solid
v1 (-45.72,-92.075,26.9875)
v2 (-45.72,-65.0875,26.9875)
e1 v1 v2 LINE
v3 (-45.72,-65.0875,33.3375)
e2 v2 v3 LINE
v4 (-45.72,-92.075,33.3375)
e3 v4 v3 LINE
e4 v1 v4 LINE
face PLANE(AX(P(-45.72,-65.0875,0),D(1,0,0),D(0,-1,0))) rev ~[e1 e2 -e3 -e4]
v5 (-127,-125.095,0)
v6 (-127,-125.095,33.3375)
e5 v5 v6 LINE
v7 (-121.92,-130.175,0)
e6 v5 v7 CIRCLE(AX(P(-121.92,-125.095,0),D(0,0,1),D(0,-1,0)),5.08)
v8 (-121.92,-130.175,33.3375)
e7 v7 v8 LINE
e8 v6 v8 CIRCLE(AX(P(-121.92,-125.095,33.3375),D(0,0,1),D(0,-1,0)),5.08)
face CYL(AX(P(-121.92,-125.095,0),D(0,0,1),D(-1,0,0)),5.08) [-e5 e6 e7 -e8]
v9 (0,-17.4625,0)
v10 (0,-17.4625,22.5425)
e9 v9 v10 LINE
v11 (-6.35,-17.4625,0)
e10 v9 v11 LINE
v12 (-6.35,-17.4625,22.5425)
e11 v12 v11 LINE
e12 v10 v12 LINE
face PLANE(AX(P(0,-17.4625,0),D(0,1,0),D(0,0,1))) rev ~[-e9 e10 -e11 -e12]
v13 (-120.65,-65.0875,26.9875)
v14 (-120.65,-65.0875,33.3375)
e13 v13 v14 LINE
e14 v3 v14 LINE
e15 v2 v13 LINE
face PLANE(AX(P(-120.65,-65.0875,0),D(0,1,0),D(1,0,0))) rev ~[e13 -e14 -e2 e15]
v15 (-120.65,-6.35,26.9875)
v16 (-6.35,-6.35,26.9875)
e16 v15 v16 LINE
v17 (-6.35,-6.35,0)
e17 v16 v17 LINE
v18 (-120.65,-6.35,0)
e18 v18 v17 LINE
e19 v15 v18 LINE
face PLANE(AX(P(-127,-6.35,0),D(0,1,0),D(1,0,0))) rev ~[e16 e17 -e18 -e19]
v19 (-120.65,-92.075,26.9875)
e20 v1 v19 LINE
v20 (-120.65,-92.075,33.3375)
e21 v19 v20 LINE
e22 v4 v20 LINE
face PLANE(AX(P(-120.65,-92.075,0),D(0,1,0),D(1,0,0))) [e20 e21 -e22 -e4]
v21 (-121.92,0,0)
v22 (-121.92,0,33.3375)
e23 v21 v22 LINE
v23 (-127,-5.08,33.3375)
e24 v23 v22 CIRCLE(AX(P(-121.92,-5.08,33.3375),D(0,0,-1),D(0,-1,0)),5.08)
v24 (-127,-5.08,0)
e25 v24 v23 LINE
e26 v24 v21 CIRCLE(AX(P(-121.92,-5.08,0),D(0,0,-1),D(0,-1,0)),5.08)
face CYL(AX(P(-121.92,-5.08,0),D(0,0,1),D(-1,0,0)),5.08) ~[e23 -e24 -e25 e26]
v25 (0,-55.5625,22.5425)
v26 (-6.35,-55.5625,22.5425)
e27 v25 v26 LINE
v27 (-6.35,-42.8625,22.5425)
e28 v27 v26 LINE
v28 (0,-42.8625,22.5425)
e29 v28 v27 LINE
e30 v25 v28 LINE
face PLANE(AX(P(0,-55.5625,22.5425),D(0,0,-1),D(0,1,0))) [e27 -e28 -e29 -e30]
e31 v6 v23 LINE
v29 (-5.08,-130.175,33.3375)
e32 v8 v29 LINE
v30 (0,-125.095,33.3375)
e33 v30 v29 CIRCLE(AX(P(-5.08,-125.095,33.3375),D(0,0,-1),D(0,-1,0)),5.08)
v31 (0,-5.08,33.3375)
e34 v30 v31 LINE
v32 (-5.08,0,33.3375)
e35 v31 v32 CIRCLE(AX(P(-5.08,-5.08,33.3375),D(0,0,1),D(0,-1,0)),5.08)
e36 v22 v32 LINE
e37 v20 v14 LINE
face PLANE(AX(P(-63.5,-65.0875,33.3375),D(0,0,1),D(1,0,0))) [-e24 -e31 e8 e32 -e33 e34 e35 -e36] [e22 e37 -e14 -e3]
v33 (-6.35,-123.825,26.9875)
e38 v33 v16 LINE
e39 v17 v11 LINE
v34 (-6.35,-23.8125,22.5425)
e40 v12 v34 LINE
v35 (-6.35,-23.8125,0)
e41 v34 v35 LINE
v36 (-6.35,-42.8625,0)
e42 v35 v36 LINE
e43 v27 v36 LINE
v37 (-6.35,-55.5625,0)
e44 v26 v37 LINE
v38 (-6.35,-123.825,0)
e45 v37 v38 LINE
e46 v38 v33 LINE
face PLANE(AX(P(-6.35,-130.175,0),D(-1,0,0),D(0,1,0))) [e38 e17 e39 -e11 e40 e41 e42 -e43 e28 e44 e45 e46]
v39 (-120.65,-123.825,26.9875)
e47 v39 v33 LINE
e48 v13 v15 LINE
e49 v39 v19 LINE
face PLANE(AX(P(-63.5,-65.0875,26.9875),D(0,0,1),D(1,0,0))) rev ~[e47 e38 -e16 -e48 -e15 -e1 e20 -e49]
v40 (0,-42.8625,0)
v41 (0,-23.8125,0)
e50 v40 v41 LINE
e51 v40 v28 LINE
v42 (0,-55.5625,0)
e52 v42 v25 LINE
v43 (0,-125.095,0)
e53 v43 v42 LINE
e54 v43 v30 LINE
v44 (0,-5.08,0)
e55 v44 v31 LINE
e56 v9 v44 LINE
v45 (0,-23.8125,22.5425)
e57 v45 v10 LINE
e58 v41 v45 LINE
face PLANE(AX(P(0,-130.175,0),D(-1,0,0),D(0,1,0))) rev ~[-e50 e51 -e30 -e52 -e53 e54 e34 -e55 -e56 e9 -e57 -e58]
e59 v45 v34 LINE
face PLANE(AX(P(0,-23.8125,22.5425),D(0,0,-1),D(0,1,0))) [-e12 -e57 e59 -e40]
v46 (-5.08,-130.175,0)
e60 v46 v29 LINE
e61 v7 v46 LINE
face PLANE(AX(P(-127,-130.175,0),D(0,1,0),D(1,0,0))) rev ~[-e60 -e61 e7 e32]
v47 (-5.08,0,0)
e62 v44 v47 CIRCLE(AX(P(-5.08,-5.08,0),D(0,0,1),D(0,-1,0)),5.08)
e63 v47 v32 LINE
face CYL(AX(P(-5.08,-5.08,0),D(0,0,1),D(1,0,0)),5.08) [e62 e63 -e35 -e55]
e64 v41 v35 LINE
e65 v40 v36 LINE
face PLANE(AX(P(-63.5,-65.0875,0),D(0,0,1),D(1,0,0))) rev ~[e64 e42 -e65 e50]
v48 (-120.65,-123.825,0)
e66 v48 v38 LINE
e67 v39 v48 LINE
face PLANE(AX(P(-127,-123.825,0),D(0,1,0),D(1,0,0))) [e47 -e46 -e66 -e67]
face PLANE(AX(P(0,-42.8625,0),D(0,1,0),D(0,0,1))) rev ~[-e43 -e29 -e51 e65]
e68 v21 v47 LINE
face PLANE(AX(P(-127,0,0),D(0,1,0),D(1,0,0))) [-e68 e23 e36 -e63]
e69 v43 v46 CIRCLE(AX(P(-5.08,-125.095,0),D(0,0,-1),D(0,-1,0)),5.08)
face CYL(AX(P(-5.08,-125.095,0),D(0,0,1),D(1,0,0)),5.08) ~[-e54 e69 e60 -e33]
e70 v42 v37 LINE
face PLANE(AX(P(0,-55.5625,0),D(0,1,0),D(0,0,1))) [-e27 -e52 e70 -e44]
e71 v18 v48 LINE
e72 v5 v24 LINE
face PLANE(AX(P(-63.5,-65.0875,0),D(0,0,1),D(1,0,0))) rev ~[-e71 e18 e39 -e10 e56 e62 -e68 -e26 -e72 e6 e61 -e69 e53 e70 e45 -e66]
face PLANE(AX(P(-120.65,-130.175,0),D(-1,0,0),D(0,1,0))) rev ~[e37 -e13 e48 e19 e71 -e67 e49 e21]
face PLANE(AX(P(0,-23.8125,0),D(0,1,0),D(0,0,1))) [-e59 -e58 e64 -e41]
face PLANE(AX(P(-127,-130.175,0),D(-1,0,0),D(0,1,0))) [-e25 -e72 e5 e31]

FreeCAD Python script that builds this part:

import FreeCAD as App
import Part
import Sketcher
from FreeCAD import Vector
Q = App.Units.Quantity


def edges_at(feature, points):
    """Names of the edges that pass closest to the given points."""
    edges = feature.Shape.Edges
    near = lambda p: min(range(len(edges)), key=lambda i: edges[i].distToShape(Part.Vertex(*p))[0])
    return sorted({f"Edge{near(p) + 1}" for p in points})


def faces_at(feature, points):
    """Names of the faces that lie closest to the given points."""
    faces = feature.Shape.Faces
    near = lambda p: min(range(len(faces)), key=lambda i: faces[i].distToShape(Part.Vertex(*p))[0])
    return sorted({f"Face{near(p) + 1}" for p in points})

doc = App.newDocument("Part")
body = doc.addObject("PartDesign::Body", "Body")

# Sketch on XY plane
sketch1 = doc.addObject("Sketcher::SketchObject", "Sketch")
body.addObject(sketch1)
sketch1.AttachmentSupport = (doc.XY_Plane, [""])
sketch1.MapMode = "FlatFace"
sketch1.addGeometry(Part.LineSegment(Vector(-127, 0, 0), Vector(-127, -130.175, 0)), False)
sketch1.addGeometry(Part.LineSegment(Vector(-127, -130.175, 0), Vector(0, -130.175, 0)), False)
sketch1.addGeometry(Part.LineSegment(Vector(0, -130.175, 0), Vector(0, 0, 0)), False)
sketch1.addGeometry(Part.LineSegment(Vector(0, 0, 0), Vector(-127, 0, 0)), False)
sketch1.addConstraint(Sketcher.Constraint("Coincident", 0, 2, 1, 1))
sketch1.addConstraint(Sketcher.Constraint("Coincident", 1, 2, 2, 1))
sketch1.addConstraint(Sketcher.Constraint("Coincident", 2, 2, 3, 1))
sketch1.addConstraint(Sketcher.Constraint("Coincident", 3, 2, 0, 1))
sketch1.addConstraint(Sketcher.Constraint("Vertical", 0))
sketch1.addConstraint(Sketcher.Constraint("Horizontal", 1))
sketch1.addConstraint(Sketcher.Constraint("Vertical", 2))
sketch1.addConstraint(Sketcher.Constraint("Horizontal", 3))
sketch1.addConstraint(Sketcher.Constraint("Coincident", 2, 2, -1, 1))
sketch1.addConstraint(Sketcher.Constraint("DistanceX", 1, 1, 1, 2, Q("5 in")))
sketch1.addConstraint(Sketcher.Constraint("DistanceY", 0, 2, 0, 1, Q("5.125 in")))
pad1 = doc.addObject("PartDesign::Pad", "Pad")
body.addObject(pad1)
pad1.Profile = sketch1
pad1.Length = Q("1.3125 in")
doc.recompute()

thickness = doc.addObject("PartDesign::Thickness", "Thickness")
body.addObject(thickness)
thickness.Base = (pad1, faces_at(pad1, [(-63.5, -65.088, 0)]))
thickness.Value = Q("0.25 in")
thickness.Reversed = True
thickness.Join = "Arc"

# Sketch on XY plane
sketch2 = doc.addObject("Sketcher::SketchObject", "Sketch001")
body.addObject(sketch2)
sketch2.AttachmentSupport = (doc.XY_Plane, [""])
sketch2.MapMode = "FlatFace"
sketch2.addGeometry(Part.LineSegment(Vector(-120.65, -92.075, 0), Vector(-120.65, -65.0875, 0)), False)
sketch2.addGeometry(Part.LineSegment(Vector(-120.65, -65.0875, 0), Vector(-45.72, -65.0875, 0)), False)
sketch2.addGeometry(Part.LineSegment(Vector(-45.72, -65.0875, 0), Vector(-45.72, -92.075, 0)), False)
sketch2.addGeometry(Part.LineSegment(Vector(-45.72, -92.075, 0), Vector(-120.65, -92.075, 0)), False)
sketch2.addConstraint(Sketcher.Constraint("Coincident", 0, 2, 1, 1))
sketch2.addConstraint(Sketcher.Constraint("Coincident", 1, 2, 2, 1))
sketch2.addConstraint(Sketcher.Constraint("Coincident", 2, 2, 3, 1))
sketch2.addConstraint(Sketcher.Constraint("Coincident", 3, 2, 0, 1))
sketch2.addConstraint(Sketcher.Constraint("Vertical", 0))
sketch2.addConstraint(Sketcher.Constraint("Horizontal", 1))
sketch2.addConstraint(Sketcher.Constraint("Vertical", 2))
sketch2.addConstraint(Sketcher.Constraint("Horizontal", 3))
sketch2.addConstraint(Sketcher.Constraint("DistanceX", 1, 1, 1, 2, Q("2.95 in")))
sketch2.addConstraint(Sketcher.Constraint("DistanceX", 1, 2, -1, 1, Q("1.8 in")))
sketch2.addConstraint(Sketcher.Constraint("DistanceY", 0, 1, 0, 2, Q("1.0625 in")))
sketch2.addConstraint(Sketcher.Constraint("DistanceY", 0, 2, -1, 1, Q("2.5625 in")))
pocket1 = doc.addObject("PartDesign::Pocket", "Pocket")
body.addObject(pocket1)
pocket1.Profile = sketch2
pocket1.Length = Q("1.38 in")
pocket1.Reversed = True

# Sketch on YZ plane
sketch3 = doc.addObject("Sketcher::SketchObject", "Sketch002")
body.addObject(sketch3)
sketch3.AttachmentSupport = (doc.YZ_Plane, [""])
sketch3.MapMode = "FlatFace"
sketch3.addGeometry(Part.LineSegment(Vector(-55.5625, 0, 0), Vector(-55.5625, -8.65013, 0)), False)
sketch3.addGeometry(Part.LineSegment(Vector(-55.5625, -8.65013, 0), Vector(-42.8625, -8.65013, 0)), False)
sketch3.addGeometry(Part.LineSegment(Vector(-42.8625, -8.65013, 0), Vector(-42.8625, 0, 0)), False)
sketch3.addGeometry(Part.LineSegment(Vector(-42.8625, 0, 0), Vector(-55.5625, 0, 0)), False)
sketch3.addGeometry(Part.LineSegment(Vector(-23.8125, 0, 0), Vector(-23.8125, -8.65013, 0)), False)
sketch3.addGeometry(Part.LineSegment(Vector(-23.8125, -8.65013, 0), Vector(-17.4625, -8.65013, 0)), False)
sketch3.addGeometry(Part.LineSegment(Vector(-17.4625, -8.65013, 0), Vector(-17.4625, 0, 0)), False)
sketch3.addGeometry(Part.LineSegment(Vector(-17.4625, 0, 0), Vector(-23.8125, 0, 0)), False)
sketch3.addConstraint(Sketcher.Constraint("Coincident", 0, 2, 1, 1))
sketch3.addConstraint(Sketcher.Constraint("Coincident", 1, 2, 2, 1))
sketch3.addConstraint(Sketcher.Constraint("Coincident", 2, 2, 3, 1))
sketch3.addConstraint(Sketcher.Constraint("Coincident", 3, 2, 0, 1))
sketch3.addConstraint(Sketcher.Constraint("Coincident", 4, 2, 5, 1))
sketch3.addConstraint(Sketcher.Constraint("Coincident", 5, 2, 6, 1))
sketch3.addConstraint(Sketcher.Constraint("Coincident", 6, 2, 7, 1))
sketch3.addConstraint(Sketcher.Constraint("Coincident", 7, 2, 4, 1))
sketch3.addConstraint(Sketcher.Constraint("Vertical", 0))
sketch3.addConstraint(Sketcher.Constraint("Horizontal", 1))
sketch3.addConstraint(Sketcher.Constraint("Vertical", 2))
sketch3.addConstraint(Sketcher.Constraint("Horizontal", 3))
sketch3.addConstraint(Sketcher.Constraint("Vertical", 4))
sketch3.addConstraint(Sketcher.Constraint("Horizontal", 5))
sketch3.addConstraint(Sketcher.Constraint("Vertical", 6))
sketch3.addConstraint(Sketcher.Constraint("Horizontal", 7))
sketch3.addConstraint(Sketcher.Constraint("PointOnObject", 2, 2, -1))
sketch3.addConstraint(Sketcher.Constraint("PointOnObject", 6, 2, -1))
sketch3.addConstraint(Sketcher.Constraint("Horizontal", 1, 2, 4, 2))
sketch3.addConstraint(Sketcher.Constraint("DistanceX", 1, 1, 1, 2, Q("0.5 in")))
sketch3.addConstraint(Sketcher.Constraint("DistanceX", 1, 2, 5, 2, Q("1 in")))
sketch3.addConstraint(Sketcher.Constraint("DistanceX", 5, 1, 5, 2, Q("0.25 in")))
sketch3.addConstraint(Sketcher.Constraint("DistanceX", 0, 2, -1, 1, Q("2.1875 in")))
sketch3.addConstraint(Sketcher.Constraint("DistanceY", 0, 2, 0, 1, Q("8.65013 mm")))
pocket2 = doc.addObject("PartDesign::Pocket", "Pocket001")
body.addObject(pocket2)
pocket2.Profile = sketch3
pocket2.Length = Q("1 in")
doc.recompute()

fillet = doc.addObject("PartDesign::Fillet", "Fillet")
body.addObject(fillet)
fillet.Base = (pocket2, edges_at(pocket2, [
    (-127, 0, 16.669),
    (-127, -130.175, 16.669),
    (0, -130.175, 16.669),
    (0, 0, 16.669),
]))
fillet.Radius = Q("0.2 in")

# Sketch on YZ plane
sketch4 = doc.addObject("Sketcher::SketchObject", "Sketch003")
body.addObject(sketch4)
sketch4.AttachmentSupport = (doc.YZ_Plane, [""])
sketch4.MapMode = "FlatFace"
sketch4.addGeometry(Part.LineSegment(Vector(-55.5625, 22.5425, 0), Vector(-55.5625, 0, 0)), False)
sketch4.addGeometry(Part.LineSegment(Vector(-55.5625, 0, 0), Vector(-42.8625, 0, 0)), False)
sketch4.addGeometry(Part.LineSegment(Vector(-42.8625, 0, 0), Vector(-42.8625, 22.5425, 0)), False)
sketch4.addGeometry(Part.LineSegment(Vector(-42.8625, 22.5425, 0), Vector(-55.5625, 22.5425, 0)), False)
sketch4.addGeometry(Part.LineSegment(Vector(-23.8125, 22.5425, 0), Vector(-23.8125, 0, 0)), False)
sketch4.addGeometry(Part.LineSegment(Vector(-23.8125, 0, 0), Vector(-17.4625, 0, 0)), False)
sketch4.addGeometry(Part.LineSegment(Vector(-17.4625, 0, 0), Vector(-17.4625, 22.5425, 0)), False)
sketch4.addGeometry(Part.LineSegment(Vector(-17.4625, 22.5425, 0), Vector(-23.8125, 22.5425, 0)), False)
sketch4.addConstraint(Sketcher.Constraint("Coincident", 0, 2, 1, 1))
sketch4.addConstraint(Sketcher.Constraint("Coincident", 1, 2, 2, 1))
sketch4.addConstraint(Sketcher.Constraint("Coincident", 2, 2, 3, 1))
sketch4.addConstraint(Sketcher.Constraint("Coincident", 3, 2, 0, 1))
sketch4.addConstraint(Sketcher.Constraint("Coincident", 4, 2, 5, 1))
sketch4.addConstraint(Sketcher.Constraint("Coincident", 5, 2, 6, 1))
sketch4.addConstraint(Sketcher.Constraint("Coincident", 6, 2, 7, 1))
sketch4.addConstraint(Sketcher.Constraint("Coincident", 7, 2, 4, 1))
sketch4.addConstraint(Sketcher.Constraint("Vertical", 0))
sketch4.addConstraint(Sketcher.Constraint("Horizontal", 1))
sketch4.addConstraint(Sketcher.Constraint("Vertical", 2))
sketch4.addConstraint(Sketcher.Constraint("Horizontal", 3))
sketch4.addConstraint(Sketcher.Constraint("Vertical", 4))
sketch4.addConstraint(Sketcher.Constraint("Horizontal", 5))
sketch4.addConstraint(Sketcher.Constraint("Vertical", 6))
sketch4.addConstraint(Sketcher.Constraint("Horizontal", 7))
sketch4.addConstraint(Sketcher.Constraint("PointOnObject", 0, 2, -1))
sketch4.addConstraint(Sketcher.Constraint("PointOnObject", 4, 2, -1))
sketch4.addConstraint(Sketcher.Constraint("Horizontal", 3, 2, 6, 2))
sketch4.addConstraint(Sketcher.Constraint("DistanceX", 1, 1, 1, 2, Q("0.5 in")))
sketch4.addConstraint(Sketcher.Constraint("DistanceX", 1, 2, 5, 2, Q("1 in")))
sketch4.addConstraint(Sketcher.Constraint("DistanceX", 5, 1, 5, 2, Q("0.25 in")))
sketch4.addConstraint(Sketcher.Constraint("DistanceY", 0, 2, 0, 1, Q("0.8875 in")))
sketch4.addConstraint(Sketcher.Constraint("DistanceX", 0, 2, -1, 1, Q("2.1875 in")))
pocket3 = doc.addObject("PartDesign::Pocket", "Pocket002")
body.addObject(pocket3)
pocket3.Profile = sketch4
pocket3.Length = Q("1 in")

doc.recompute()
